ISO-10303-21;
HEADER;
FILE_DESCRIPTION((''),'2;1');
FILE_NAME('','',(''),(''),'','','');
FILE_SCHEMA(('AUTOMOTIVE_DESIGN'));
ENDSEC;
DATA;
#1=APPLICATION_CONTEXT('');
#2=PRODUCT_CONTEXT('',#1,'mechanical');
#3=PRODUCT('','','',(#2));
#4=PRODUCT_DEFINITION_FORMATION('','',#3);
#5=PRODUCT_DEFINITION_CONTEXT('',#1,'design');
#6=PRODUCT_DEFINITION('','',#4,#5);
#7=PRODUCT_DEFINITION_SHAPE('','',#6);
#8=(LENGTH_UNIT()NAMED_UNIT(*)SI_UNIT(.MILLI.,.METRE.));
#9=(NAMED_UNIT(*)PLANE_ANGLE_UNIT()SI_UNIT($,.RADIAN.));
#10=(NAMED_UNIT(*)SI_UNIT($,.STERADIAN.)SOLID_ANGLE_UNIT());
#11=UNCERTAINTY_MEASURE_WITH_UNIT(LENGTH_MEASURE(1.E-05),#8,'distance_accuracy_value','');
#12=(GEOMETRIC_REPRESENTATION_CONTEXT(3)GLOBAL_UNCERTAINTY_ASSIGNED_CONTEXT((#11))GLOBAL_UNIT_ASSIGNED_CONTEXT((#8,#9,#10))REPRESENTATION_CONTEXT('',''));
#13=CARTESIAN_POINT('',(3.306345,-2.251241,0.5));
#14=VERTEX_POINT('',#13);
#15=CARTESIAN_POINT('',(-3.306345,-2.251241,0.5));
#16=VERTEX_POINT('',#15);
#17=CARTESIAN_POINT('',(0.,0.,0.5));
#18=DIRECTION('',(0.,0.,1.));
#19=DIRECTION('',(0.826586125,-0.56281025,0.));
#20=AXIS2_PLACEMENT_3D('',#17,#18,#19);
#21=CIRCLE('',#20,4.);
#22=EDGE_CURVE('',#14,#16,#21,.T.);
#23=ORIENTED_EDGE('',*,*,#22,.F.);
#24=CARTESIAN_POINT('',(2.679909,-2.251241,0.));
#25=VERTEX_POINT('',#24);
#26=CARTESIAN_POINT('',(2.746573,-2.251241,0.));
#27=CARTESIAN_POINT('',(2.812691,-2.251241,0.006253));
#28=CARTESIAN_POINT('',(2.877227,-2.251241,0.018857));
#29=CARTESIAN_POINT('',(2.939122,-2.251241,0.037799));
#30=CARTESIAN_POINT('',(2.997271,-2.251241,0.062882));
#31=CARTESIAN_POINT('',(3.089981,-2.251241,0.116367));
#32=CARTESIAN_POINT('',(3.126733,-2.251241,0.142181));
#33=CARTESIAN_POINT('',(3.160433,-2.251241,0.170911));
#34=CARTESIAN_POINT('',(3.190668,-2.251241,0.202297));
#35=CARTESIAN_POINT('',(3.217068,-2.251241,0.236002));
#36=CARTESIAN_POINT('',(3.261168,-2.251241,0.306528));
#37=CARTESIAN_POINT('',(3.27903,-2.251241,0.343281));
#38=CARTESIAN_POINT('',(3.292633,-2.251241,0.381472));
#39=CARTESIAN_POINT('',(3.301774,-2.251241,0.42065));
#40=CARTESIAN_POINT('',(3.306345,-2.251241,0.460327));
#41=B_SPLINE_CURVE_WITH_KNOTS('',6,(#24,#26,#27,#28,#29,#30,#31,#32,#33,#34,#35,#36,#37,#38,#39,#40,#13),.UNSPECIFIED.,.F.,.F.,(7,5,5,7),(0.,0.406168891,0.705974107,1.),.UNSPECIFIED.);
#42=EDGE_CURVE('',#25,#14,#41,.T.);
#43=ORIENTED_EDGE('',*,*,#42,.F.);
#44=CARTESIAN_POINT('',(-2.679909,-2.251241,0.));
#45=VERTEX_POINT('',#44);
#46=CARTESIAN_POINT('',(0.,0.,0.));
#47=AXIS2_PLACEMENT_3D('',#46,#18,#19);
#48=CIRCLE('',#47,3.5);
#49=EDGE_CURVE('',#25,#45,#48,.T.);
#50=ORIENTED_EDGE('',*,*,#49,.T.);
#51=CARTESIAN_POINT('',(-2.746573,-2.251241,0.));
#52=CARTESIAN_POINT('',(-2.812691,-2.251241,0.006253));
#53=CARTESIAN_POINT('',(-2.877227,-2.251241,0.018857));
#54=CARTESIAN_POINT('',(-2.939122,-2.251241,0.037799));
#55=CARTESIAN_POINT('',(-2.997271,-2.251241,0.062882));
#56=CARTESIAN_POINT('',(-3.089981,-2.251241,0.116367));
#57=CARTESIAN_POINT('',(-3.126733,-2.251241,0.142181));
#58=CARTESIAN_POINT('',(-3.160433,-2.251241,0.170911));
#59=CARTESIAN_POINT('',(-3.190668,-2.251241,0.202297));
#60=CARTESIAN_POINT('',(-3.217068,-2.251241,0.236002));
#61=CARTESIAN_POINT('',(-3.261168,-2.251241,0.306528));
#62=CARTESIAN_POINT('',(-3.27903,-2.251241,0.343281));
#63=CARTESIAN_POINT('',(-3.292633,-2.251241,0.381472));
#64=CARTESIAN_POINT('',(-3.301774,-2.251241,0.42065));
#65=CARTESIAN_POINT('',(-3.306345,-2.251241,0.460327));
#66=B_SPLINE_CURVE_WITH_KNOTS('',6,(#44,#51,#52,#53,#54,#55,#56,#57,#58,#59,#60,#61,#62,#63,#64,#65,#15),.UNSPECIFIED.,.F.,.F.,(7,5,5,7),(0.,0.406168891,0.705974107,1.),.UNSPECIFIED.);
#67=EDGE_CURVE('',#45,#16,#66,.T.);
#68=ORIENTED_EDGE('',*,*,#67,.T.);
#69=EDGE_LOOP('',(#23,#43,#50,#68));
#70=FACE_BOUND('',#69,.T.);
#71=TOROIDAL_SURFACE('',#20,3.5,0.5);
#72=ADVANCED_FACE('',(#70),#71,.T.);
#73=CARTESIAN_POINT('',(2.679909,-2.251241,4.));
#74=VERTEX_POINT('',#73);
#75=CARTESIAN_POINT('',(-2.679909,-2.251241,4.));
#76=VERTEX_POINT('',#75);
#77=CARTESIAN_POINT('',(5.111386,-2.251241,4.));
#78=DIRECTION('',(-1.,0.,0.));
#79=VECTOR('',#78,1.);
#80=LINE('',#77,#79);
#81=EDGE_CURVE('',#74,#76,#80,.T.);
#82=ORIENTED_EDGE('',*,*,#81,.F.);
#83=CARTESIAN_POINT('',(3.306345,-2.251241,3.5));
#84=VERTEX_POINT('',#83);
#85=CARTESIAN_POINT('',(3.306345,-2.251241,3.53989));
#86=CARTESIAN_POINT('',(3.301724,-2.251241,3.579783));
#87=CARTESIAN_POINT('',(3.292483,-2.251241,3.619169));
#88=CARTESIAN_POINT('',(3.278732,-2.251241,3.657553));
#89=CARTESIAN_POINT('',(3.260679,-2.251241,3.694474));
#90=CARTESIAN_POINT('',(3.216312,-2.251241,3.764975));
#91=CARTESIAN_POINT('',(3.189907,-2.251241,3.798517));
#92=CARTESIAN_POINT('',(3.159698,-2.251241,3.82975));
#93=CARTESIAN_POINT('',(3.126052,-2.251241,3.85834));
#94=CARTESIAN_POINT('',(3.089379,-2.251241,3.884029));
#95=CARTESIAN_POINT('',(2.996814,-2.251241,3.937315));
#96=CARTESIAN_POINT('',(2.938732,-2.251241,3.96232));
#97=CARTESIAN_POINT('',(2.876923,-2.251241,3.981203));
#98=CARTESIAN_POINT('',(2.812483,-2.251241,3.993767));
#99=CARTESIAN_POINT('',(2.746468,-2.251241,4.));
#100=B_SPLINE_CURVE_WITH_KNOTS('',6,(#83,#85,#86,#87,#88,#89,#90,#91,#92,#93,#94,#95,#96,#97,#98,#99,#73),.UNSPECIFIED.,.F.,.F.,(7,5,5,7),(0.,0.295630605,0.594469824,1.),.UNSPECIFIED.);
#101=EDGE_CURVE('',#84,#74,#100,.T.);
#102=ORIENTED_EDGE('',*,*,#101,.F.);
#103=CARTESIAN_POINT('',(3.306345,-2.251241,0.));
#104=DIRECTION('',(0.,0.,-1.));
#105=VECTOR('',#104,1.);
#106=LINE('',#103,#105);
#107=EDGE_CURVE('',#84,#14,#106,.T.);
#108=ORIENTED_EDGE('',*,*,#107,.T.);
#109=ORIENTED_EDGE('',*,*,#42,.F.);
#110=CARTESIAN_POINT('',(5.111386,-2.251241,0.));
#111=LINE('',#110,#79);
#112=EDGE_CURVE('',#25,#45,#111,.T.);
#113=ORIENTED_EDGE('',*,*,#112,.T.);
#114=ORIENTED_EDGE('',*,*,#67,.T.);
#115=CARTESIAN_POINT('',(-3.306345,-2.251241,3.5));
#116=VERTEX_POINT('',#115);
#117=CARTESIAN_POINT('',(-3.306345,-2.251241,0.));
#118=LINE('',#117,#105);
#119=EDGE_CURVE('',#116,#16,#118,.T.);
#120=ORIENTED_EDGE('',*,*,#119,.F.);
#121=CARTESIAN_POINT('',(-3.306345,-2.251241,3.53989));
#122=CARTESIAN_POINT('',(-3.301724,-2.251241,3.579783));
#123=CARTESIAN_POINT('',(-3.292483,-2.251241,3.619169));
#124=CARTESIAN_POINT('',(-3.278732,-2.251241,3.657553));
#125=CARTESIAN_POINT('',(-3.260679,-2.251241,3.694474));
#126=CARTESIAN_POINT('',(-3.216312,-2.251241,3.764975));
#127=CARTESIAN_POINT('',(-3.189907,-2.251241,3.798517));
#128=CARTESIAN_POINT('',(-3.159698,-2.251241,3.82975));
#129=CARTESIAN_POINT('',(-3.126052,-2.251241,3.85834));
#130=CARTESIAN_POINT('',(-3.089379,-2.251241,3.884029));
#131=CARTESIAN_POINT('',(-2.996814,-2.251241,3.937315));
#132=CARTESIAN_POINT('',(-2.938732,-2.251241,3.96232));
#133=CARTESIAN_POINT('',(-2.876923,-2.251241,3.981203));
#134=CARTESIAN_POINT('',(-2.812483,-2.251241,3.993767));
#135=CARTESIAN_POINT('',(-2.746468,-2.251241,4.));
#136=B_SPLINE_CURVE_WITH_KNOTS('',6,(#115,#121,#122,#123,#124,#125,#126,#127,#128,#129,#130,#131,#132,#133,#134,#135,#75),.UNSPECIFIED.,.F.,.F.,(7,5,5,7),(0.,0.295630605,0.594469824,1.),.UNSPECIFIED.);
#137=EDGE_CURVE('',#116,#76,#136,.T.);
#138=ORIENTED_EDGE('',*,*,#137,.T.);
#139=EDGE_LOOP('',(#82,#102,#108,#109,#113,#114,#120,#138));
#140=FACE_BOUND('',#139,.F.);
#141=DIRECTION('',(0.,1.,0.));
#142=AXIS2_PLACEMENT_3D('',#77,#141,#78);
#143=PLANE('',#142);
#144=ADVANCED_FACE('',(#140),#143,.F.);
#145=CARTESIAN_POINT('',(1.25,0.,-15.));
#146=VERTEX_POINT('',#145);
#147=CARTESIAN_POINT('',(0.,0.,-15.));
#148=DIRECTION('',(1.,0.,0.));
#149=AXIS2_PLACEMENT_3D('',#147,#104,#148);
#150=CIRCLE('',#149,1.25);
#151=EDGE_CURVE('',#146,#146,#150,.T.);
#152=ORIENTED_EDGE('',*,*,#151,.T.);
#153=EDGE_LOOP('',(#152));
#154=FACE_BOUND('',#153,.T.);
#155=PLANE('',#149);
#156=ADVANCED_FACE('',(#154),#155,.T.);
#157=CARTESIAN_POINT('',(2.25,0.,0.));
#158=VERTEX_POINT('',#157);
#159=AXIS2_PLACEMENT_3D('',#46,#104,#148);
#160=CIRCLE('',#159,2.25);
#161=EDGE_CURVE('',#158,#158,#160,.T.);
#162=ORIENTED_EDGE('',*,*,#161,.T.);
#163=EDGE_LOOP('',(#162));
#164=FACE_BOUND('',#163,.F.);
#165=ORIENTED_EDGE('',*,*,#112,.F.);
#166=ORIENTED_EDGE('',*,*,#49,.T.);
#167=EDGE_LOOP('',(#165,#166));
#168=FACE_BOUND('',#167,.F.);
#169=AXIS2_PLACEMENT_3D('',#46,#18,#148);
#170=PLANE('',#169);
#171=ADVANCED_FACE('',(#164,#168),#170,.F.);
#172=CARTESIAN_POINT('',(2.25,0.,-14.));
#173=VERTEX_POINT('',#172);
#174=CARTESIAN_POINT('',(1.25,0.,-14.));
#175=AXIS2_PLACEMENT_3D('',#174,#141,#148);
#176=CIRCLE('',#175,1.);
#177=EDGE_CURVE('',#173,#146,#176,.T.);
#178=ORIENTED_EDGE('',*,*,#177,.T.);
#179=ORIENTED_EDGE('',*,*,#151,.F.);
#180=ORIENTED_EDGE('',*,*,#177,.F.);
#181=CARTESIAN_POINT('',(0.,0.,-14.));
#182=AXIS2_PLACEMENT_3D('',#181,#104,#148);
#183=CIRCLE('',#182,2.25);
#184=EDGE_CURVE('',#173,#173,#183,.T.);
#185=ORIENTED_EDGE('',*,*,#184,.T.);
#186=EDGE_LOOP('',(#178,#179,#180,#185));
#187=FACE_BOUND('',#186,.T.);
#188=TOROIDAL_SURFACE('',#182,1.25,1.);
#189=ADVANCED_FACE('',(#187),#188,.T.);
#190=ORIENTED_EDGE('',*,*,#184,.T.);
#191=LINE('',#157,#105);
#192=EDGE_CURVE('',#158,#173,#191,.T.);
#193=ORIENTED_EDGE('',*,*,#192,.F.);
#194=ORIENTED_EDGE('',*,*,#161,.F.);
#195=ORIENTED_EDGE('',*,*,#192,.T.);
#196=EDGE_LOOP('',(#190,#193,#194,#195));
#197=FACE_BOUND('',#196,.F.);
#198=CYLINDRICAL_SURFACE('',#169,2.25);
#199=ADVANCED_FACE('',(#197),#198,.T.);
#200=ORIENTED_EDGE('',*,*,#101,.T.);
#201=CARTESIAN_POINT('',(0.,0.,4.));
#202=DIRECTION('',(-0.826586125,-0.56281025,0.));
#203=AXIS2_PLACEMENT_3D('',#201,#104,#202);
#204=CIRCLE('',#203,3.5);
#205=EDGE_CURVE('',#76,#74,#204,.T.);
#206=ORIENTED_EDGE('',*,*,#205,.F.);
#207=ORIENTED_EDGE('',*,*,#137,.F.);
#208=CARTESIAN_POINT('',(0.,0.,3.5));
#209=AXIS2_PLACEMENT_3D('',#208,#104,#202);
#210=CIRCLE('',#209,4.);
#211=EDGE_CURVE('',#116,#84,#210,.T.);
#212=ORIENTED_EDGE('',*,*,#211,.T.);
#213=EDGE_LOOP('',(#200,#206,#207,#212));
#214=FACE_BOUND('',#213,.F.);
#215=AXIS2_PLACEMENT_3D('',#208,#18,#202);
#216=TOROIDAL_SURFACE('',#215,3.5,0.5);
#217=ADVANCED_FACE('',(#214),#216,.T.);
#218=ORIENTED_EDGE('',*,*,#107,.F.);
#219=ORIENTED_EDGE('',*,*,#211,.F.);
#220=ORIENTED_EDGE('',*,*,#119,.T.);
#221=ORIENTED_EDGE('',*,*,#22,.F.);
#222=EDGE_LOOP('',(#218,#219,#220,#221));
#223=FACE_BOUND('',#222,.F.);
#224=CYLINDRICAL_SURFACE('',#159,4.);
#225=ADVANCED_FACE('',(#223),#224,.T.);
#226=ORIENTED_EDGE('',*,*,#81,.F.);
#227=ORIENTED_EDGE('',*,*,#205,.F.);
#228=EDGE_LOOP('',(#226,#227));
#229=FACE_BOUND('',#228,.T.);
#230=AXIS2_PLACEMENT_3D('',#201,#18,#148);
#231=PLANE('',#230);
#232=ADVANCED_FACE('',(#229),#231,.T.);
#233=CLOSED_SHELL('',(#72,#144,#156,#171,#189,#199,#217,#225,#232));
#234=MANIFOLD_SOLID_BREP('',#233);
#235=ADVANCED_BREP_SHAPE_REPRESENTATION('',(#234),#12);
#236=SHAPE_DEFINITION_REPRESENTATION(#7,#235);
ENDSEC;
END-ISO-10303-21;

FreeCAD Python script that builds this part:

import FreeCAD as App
import Part
import Sketcher
from FreeCAD import Vector


def edges_at(feature, points):
    """Names of the edges that pass closest to the given points."""
    edges = feature.Shape.Edges
    near = lambda p: min(range(len(edges)), key=lambda i: edges[i].distToShape(Part.Vertex(*p))[0])
    return sorted({f"Edge{near(p) + 1}" for p in points})

doc = App.newDocument("Part")
body = doc.addObject("PartDesign::Body", "Body")

sketch1 = body.newObject("Sketcher::SketchObject", "Sketch")
sketch1.AttachmentSupport = (doc.getObject("XY_Plane"), [""])
sketch1.MapMode = "FlatFace"
sketch1.addGeometry(Part.Circle(Vector(0, 0, 0), Vector(0, 0, 1), 4), False)
sketch1.addConstraint(Sketcher.Constraint("Coincident", 0, 3, -1, 1))
sketch1.addConstraint(Sketcher.Constraint("Diameter", 0, 8.0))
pad1 = body.newObject("PartDesign::Pad", "Pad")
pad1.Profile = sketch1
pad1.Length = 4

sketch2 = body.newObject("Sketcher::SketchObject", "Sketch001")
sketch2.AttachmentSupport = (doc.getObject("XY_Plane"), [""])
sketch2.MapMode = "FlatFace"
sketch2.addGeometry(Part.Circle(Vector(0, 0, 0), Vector(0, 0, 1), 2.25), False)
sketch2.addConstraint(Sketcher.Constraint("Coincident", 0, 3, -1, 1))
sketch2.addConstraint(Sketcher.Constraint("Diameter", 0, 4.5))
pad2 = body.newObject("PartDesign::Pad", "Pad001")
pad2.Profile = sketch2
pad2.Length = 15
pad2.Reversed = True

sketch3 = body.newObject("Sketcher::SketchObject", "Sketch002")
sketch3.AttachmentSupport = (doc.getObject("XY_Plane"), [""])
sketch3.MapMode = "FlatFace"
sketch3.AttachmentOffset = App.Placement(Vector(0, 0, 4), App.Rotation())
sketch3.addGeometry(Part.LineSegment(Vector(5.111386, -2.251241, 0), Vector(-4.930368, -2.251241, 0)), False)
sketch3.addGeometry(Part.LineSegment(Vector(-4.930368, -2.251241, 0), Vector(-2.237212, -4.44078, 0)), False)
sketch3.addGeometry(Part.LineSegment(Vector(-2.237212, -4.44078, 0), Vector(3.483612, -4.44078, 0)), False)
sketch3.addGeometry(Part.LineSegment(Vector(3.483612, -4.44078, 0), Vector(5.111386, -2.251241, 0)), False)
sketch3.addConstraint(Sketcher.Constraint("Coincident", 0, 2, 1, 1))
sketch3.addConstraint(Sketcher.Constraint("Coincident", 1, 2, 2, 1))
sketch3.addConstraint(Sketcher.Constraint("Coincident", 2, 2, 3, 1))
sketch3.addConstraint(Sketcher.Constraint("Coincident", 3, 2, 0, 1))
sketch3.addConstraint(Sketcher.Constraint("Horizontal", 0))
sketch3.addConstraint(Sketcher.Constraint("Horizontal", 2))
sketch3.addConstraint(Sketcher.Constraint("DistanceX", 1, 2, 3, 2, 7.348598))
sketch3.addConstraint(Sketcher.Constraint("Distance", 3, 2.72832))
sketch3.addConstraint(Sketcher.Constraint("DistanceX", 0, 2, 0, 1, 10.041754))
sketch3.addConstraint(Sketcher.Constraint("DistanceX", 2, 1, 2, 2, 5.720824))
sketch3.addConstraint(Sketcher.Constraint("DistanceY", 0, 2, -1, 1, 2.251241))
sketch3.addConstraint(Sketcher.Constraint("DistanceX", 1, 2, -1, 1, 2.237212))
pocket1 = body.newObject("PartDesign::Pocket", "Pocket")
pocket1.Profile = sketch3
pocket1.Length = 4
doc.recompute()

fillet = body.newObject("PartDesign::Fillet", "Fillet")
fillet.Base = (pocket1, edges_at(pocket1, [(-2.25, 0, -15)]))
fillet.Radius = 1
doc.recompute()

fillet2 = body.newObject("PartDesign::Fillet", "Fillet001")
fillet2.Base = (fillet, edges_at(fillet, [(0, 4, 0), (0, 4, 4)]))
fillet2.Radius = 0.5

doc.recompute()
